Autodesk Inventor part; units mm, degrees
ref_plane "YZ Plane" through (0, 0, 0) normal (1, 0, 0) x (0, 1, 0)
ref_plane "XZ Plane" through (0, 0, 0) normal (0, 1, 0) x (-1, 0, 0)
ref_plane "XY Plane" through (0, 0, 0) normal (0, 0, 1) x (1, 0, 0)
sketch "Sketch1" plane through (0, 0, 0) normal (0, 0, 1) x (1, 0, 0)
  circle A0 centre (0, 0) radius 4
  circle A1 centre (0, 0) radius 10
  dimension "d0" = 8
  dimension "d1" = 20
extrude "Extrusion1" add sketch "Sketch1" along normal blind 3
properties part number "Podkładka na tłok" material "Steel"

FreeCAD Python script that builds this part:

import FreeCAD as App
import Part
import Sketcher
from FreeCAD import Vector
Q = App.Units.Quantity

doc = App.newDocument("Part")
body = doc.addObject("PartDesign::Body", "Body")

sketch1 = body.newObject("Sketcher::SketchObject", "Sketch")
sketch1.AttachmentSupport = (doc.getObject("XY_Plane"), [""])
sketch1.MapMode = "FlatFace"
sketch1.addGeometry(Part.Circle(Vector(0, 0, 0), Vector(0, 0, 1), 10), False)
sketch1.addGeometry(Part.Circle(Vector(0, 0, 0), Vector(0, 0, 1), 4), False)
sketch1.addConstraint(Sketcher.Constraint("Coincident", 0, 3, -1, 1))
sketch1.addConstraint(Sketcher.Constraint("Coincident", 1, 3, -1, 1))
sketch1.addConstraint(Sketcher.Constraint("Diameter", 0, Q("20 mm")))
sketch1.addConstraint(Sketcher.Constraint("Diameter", 1, Q("8 mm")))
pad1 = body.newObject("PartDesign::Pad", "Pad")
pad1.Profile = sketch1
pad1.Length = 3

doc.recompute()
